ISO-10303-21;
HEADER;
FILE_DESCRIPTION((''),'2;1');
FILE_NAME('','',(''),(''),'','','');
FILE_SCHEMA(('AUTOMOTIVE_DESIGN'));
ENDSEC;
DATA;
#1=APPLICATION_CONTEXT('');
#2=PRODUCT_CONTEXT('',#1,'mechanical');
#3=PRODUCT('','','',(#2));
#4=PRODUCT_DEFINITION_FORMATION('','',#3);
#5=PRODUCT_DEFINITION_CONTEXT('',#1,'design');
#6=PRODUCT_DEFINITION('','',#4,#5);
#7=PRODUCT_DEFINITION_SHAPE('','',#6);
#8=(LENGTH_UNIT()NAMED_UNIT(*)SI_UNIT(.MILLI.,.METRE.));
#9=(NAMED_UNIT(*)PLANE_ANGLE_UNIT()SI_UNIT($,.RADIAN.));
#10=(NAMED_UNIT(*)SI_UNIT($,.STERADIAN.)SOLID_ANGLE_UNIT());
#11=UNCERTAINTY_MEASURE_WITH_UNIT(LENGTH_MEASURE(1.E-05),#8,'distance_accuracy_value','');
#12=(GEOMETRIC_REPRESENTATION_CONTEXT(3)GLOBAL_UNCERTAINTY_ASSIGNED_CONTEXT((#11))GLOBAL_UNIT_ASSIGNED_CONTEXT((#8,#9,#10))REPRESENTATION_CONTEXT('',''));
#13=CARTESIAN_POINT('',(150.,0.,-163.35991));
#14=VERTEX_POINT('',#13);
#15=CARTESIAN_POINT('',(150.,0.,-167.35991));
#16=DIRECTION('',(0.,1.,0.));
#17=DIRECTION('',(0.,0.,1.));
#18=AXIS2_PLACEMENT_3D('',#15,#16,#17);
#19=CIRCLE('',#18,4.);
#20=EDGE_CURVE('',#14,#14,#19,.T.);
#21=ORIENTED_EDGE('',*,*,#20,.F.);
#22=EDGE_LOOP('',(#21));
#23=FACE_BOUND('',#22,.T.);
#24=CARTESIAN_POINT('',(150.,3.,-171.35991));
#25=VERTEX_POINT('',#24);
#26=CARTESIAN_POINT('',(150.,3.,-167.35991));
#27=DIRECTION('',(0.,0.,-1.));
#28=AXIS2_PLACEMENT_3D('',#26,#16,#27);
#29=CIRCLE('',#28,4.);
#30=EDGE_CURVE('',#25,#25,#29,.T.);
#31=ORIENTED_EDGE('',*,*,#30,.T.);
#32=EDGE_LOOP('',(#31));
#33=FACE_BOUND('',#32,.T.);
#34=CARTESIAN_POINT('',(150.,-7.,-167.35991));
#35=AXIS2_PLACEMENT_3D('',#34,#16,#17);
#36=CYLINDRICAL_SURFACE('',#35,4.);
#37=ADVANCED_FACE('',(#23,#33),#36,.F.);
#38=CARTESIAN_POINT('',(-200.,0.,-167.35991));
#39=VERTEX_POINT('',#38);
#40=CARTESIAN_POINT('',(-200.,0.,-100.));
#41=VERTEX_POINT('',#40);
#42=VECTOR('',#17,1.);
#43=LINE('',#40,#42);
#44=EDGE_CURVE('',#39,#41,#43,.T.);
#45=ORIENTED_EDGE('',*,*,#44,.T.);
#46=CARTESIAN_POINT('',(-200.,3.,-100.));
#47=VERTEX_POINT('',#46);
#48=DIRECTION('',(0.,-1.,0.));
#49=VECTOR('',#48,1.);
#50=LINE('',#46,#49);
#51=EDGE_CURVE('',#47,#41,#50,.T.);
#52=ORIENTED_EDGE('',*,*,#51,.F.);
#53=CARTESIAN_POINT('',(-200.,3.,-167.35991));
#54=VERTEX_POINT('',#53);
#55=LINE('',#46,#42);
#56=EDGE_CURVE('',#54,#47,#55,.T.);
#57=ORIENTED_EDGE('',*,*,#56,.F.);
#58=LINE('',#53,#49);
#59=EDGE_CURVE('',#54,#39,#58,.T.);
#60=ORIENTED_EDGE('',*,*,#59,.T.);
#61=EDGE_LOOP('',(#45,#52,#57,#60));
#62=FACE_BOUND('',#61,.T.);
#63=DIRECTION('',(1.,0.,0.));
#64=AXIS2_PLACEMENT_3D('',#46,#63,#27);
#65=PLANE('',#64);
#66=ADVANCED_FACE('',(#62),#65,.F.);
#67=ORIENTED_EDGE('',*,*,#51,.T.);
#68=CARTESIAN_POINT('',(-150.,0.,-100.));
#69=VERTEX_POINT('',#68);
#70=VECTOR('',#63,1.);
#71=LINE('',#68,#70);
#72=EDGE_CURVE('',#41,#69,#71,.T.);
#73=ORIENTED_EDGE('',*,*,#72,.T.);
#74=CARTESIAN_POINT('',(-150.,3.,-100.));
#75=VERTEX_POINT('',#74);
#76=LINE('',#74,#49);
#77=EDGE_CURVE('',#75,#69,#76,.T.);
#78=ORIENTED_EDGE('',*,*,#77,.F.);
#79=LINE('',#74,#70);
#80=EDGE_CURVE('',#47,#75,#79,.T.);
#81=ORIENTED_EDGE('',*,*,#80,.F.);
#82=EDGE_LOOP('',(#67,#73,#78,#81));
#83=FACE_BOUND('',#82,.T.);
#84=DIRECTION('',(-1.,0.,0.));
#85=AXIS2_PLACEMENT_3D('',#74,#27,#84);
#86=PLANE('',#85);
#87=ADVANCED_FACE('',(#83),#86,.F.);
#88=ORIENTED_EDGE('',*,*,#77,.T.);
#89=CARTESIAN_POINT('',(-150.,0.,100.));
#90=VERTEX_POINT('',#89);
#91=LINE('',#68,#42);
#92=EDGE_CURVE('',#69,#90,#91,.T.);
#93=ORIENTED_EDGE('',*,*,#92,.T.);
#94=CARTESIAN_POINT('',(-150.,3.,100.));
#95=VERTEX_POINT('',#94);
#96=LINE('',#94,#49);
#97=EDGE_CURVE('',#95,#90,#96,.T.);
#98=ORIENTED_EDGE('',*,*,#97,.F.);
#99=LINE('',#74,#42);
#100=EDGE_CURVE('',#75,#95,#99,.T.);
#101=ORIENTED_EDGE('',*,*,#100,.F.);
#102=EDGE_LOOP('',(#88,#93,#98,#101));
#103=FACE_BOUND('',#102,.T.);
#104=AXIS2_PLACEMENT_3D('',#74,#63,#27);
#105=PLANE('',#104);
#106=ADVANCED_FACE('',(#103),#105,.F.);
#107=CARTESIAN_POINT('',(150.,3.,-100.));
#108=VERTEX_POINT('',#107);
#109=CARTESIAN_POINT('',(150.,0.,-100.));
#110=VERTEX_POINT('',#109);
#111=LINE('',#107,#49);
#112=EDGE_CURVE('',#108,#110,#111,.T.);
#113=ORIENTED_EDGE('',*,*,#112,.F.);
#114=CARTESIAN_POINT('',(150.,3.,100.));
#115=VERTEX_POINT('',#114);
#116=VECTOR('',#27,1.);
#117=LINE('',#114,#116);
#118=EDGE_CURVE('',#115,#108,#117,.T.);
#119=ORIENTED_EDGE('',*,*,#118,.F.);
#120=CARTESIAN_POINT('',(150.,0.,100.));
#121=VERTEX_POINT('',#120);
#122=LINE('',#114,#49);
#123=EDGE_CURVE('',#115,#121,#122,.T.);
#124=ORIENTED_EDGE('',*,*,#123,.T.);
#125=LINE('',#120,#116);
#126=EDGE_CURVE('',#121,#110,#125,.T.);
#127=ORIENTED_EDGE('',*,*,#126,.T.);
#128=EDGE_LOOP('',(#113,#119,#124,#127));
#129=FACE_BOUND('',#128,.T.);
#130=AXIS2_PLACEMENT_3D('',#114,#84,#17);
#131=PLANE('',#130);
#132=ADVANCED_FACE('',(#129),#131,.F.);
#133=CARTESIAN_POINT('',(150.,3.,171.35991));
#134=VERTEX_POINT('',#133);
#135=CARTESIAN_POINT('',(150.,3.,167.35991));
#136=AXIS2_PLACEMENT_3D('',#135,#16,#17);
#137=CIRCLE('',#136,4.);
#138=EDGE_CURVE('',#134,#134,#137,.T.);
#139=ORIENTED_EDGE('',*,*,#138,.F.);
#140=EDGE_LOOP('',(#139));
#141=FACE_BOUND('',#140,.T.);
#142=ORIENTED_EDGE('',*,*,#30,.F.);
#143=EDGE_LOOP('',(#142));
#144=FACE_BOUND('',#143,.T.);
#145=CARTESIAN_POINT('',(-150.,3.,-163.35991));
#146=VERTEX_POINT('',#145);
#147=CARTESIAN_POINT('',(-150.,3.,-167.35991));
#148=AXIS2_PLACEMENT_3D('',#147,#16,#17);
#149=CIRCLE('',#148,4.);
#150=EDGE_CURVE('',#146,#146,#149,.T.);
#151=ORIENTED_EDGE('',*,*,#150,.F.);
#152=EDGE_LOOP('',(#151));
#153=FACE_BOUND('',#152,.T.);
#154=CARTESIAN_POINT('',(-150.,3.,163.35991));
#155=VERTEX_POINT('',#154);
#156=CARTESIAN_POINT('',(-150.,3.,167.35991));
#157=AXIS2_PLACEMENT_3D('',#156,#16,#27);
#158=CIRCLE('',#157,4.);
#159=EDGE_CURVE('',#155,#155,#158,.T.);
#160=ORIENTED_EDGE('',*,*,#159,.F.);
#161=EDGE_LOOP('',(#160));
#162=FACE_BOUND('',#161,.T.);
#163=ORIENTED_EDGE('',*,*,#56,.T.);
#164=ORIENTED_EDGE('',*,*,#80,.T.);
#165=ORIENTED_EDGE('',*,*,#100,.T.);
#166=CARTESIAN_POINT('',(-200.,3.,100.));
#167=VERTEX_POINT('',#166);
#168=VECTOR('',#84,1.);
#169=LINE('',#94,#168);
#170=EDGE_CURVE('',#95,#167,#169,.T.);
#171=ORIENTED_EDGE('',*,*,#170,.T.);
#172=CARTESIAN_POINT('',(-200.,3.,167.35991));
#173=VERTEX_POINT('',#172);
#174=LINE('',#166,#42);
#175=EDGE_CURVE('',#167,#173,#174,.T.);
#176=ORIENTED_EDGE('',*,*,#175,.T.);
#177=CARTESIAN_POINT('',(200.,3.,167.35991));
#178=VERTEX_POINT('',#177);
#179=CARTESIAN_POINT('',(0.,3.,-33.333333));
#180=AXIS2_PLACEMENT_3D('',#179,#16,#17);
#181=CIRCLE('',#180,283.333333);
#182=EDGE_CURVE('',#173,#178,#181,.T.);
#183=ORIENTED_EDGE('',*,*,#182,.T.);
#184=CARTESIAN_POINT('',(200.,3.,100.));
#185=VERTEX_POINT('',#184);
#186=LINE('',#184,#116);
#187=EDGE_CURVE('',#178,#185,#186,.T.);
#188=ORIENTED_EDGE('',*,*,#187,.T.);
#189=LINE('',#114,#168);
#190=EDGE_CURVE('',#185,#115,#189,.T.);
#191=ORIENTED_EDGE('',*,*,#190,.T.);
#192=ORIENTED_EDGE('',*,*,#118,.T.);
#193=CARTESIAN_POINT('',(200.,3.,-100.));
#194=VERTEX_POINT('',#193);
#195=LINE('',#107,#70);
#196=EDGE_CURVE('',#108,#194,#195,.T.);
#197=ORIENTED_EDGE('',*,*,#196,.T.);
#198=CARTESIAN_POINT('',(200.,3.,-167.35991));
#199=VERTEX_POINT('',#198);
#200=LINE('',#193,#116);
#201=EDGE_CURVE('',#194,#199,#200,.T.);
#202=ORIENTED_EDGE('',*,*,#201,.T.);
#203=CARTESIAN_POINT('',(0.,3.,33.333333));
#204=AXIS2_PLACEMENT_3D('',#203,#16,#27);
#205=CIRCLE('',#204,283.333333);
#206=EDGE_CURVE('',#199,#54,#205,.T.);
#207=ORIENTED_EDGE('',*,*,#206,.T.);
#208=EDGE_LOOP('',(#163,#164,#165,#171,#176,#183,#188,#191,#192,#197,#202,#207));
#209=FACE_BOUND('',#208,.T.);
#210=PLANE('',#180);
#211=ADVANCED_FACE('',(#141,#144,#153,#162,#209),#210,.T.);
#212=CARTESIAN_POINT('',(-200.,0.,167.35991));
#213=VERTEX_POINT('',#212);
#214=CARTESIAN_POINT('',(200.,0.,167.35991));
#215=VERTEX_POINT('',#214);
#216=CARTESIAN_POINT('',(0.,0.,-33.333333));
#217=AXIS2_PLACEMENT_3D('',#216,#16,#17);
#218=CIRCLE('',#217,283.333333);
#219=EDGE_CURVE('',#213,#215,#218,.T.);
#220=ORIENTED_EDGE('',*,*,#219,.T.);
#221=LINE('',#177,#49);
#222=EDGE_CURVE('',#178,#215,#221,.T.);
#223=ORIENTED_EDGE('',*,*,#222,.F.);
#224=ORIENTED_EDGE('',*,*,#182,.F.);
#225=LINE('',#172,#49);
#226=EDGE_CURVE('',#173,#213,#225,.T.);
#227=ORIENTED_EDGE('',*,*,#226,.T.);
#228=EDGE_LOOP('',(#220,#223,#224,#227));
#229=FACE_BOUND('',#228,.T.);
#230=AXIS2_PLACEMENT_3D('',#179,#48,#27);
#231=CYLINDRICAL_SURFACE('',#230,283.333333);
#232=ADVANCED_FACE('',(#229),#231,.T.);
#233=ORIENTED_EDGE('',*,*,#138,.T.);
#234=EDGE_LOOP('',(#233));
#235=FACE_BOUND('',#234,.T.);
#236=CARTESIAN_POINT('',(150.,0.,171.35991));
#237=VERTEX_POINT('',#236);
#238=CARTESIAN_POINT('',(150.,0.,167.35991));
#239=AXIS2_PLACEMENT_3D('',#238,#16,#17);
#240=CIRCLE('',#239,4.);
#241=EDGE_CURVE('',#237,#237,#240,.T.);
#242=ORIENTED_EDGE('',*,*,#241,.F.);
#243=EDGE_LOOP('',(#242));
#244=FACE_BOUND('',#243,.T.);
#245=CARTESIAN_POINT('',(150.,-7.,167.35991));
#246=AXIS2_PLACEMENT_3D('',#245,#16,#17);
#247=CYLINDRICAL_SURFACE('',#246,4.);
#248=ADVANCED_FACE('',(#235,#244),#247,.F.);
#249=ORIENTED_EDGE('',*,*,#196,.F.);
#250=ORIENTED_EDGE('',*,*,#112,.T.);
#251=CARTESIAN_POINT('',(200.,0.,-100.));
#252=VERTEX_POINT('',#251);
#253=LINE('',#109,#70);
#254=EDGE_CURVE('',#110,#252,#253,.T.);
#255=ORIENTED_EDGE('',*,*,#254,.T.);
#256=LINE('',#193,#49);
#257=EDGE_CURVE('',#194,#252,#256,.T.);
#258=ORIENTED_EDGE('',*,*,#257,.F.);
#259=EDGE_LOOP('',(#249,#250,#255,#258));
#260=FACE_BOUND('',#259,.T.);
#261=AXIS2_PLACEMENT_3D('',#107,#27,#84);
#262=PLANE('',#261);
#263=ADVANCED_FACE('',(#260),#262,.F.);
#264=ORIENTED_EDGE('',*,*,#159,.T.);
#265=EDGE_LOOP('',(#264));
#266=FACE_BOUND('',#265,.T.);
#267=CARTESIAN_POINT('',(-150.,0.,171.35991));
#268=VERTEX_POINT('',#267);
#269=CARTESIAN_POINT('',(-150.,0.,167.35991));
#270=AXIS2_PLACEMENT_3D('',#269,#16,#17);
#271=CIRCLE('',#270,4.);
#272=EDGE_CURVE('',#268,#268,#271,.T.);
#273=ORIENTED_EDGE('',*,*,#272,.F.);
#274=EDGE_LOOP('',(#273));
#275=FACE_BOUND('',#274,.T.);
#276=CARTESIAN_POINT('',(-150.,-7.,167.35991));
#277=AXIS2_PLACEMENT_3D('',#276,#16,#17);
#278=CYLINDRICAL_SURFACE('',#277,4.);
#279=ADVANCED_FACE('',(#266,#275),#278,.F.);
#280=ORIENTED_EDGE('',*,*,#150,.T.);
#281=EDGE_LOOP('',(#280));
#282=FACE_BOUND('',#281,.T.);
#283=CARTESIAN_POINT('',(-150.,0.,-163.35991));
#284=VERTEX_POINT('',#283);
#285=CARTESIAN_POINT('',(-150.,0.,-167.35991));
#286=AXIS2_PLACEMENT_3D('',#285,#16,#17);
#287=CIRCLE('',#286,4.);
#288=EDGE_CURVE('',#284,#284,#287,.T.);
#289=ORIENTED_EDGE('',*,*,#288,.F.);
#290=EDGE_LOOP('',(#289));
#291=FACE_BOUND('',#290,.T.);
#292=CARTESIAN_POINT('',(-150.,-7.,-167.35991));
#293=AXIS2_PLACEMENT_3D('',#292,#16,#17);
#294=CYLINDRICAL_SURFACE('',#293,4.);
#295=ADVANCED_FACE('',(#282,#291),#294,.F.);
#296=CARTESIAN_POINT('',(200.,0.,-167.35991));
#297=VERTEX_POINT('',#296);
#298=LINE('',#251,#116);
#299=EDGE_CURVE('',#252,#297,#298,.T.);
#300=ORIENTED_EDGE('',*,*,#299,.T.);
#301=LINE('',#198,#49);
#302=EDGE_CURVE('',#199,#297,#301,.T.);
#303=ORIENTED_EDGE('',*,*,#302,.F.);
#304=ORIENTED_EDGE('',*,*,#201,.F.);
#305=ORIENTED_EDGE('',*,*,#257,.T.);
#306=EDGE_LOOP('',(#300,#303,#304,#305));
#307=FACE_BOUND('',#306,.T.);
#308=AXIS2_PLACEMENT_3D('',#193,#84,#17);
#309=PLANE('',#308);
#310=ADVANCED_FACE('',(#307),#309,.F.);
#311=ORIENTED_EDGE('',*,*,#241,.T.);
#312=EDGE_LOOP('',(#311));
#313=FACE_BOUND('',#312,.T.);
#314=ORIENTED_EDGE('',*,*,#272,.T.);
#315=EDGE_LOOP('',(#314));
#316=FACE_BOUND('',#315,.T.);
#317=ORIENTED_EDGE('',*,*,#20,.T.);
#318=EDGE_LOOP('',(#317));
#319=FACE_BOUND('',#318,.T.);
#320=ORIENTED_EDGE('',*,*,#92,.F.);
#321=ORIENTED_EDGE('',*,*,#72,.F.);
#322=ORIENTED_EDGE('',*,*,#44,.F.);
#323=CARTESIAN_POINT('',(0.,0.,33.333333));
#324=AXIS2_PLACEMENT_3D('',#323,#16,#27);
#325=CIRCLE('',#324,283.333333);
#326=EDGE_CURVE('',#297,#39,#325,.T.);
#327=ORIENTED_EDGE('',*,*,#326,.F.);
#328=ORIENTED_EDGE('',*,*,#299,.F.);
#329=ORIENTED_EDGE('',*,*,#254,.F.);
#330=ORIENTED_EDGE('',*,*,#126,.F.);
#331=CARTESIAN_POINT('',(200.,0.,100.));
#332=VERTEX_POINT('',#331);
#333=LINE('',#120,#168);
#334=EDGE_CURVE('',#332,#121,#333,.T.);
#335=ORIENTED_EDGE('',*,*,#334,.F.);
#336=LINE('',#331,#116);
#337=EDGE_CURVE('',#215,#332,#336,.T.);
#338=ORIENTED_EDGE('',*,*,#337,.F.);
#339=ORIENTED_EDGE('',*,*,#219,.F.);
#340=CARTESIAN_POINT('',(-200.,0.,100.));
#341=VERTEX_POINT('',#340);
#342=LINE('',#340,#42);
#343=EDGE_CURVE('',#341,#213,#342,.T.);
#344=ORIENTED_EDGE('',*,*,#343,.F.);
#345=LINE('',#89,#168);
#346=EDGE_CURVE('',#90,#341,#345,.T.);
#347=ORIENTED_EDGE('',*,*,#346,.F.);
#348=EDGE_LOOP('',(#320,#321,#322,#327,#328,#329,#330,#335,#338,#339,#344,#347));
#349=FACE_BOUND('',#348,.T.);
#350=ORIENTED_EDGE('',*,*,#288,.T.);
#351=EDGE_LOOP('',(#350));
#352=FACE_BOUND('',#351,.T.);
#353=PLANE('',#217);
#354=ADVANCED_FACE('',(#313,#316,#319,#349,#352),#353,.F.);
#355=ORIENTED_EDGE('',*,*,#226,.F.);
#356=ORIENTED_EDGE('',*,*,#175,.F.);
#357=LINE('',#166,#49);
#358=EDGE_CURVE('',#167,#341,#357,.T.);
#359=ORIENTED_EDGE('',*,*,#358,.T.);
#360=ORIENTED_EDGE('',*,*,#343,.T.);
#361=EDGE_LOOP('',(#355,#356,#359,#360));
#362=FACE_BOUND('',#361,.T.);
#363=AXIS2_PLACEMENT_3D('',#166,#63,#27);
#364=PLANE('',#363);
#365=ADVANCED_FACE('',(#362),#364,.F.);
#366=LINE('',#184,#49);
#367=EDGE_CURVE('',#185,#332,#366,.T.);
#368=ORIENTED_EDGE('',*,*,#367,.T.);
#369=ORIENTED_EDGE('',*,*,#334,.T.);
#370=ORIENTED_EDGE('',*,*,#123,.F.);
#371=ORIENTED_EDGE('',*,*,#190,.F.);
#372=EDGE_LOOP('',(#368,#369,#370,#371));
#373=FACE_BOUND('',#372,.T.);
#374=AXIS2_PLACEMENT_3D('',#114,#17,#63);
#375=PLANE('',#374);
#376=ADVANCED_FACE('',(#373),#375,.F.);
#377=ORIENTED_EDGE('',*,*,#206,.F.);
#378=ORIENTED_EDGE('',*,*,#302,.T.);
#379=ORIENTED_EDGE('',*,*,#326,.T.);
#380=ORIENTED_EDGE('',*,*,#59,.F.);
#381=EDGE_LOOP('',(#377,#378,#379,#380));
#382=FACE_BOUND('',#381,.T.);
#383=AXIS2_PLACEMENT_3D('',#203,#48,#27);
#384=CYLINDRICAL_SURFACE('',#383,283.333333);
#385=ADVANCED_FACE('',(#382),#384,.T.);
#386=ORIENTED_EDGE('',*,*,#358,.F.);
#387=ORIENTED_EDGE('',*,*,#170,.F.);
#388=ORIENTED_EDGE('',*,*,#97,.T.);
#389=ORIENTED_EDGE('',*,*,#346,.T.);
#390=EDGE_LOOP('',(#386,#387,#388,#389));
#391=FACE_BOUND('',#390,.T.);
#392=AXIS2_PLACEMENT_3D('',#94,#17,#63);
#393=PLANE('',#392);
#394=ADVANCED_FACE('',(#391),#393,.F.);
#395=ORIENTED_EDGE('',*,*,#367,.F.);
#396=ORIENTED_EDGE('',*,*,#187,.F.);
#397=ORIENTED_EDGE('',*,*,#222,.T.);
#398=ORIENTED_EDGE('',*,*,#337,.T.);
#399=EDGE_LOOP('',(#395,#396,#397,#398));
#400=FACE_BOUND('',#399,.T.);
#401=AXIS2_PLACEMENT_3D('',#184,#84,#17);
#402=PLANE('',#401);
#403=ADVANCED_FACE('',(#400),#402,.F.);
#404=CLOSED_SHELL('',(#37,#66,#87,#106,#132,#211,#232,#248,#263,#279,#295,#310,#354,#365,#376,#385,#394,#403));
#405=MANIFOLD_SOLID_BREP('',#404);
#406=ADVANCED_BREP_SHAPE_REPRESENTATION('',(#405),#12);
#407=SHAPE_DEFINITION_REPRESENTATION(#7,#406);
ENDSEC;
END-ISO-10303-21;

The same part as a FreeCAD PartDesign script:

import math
import FreeCAD as App
import Part
import Sketcher

V = App.Vector

doc = App.newDocument("Part")
body = doc.addObject("PartDesign::Body", "Body")

# Sketch on XZ plane
sketch1 = body.newObject("Sketcher::SketchObject", "Sketch")
sketch1.AttachmentSupport = (doc.getObject("XZ_Plane"), [""])
sketch1.MapMode = "FlatFace"
sketch1.addGeometry([
    Part.LineSegment(V(-200, -100, 0), V(-150, -100, 0)),  # 0
    Part.LineSegment(V(-150, -100, 0), V(-150, 100, 0)),  # 1
    Part.LineSegment(V(-150, 100, 0), V(-200, 100, 0)),  # 2
    Part.LineSegment(V(-200, 100, 0), V(-200, 167, 0)),  # 3
    Part.ArcOfCircle(Part.Circle(V(0, -33, 0), V(0, 0, 1), 283), math.radians(45), math.radians(135)),  # 4
    Part.LineSegment(V(200, 167, 0), V(200, 100, 0)),  # 5
    Part.LineSegment(V(200, 100, 0), V(150, 100, 0)),  # 6
    Part.LineSegment(V(150, 100, 0), V(150, -100, 0)),  # 7
    Part.LineSegment(V(150, -100, 0), V(200, -100, 0)),  # 8
    Part.LineSegment(V(200, -100, 0), V(200, -167, 0)),  # 9
    Part.ArcOfCircle(Part.Circle(V(0, 33, 0), V(0, 0, 1), 283), math.radians(-135), math.radians(-45)),  # 10
    Part.LineSegment(V(-200, -167, 0), V(-200, -100, 0)),  # 11
], False)
sketch1.addConstraint([
    Sketcher.Constraint("Coincident", 0, 2, 1, 1),
    Sketcher.Constraint("Coincident", 1, 2, 2, 1),
    Sketcher.Constraint("Coincident", 2, 2, 3, 1),
    Sketcher.Constraint("Coincident", 3, 2, 4, 2),
    Sketcher.Constraint("Coincident", 4, 1, 5, 1),
    Sketcher.Constraint("Coincident", 5, 2, 6, 1),
    Sketcher.Constraint("Coincident", 6, 2, 7, 1),
    Sketcher.Constraint("Coincident", 7, 2, 8, 1),
    Sketcher.Constraint("Coincident", 8, 2, 9, 1),
    Sketcher.Constraint("Coincident", 9, 2, 10, 2),
    Sketcher.Constraint("Coincident", 10, 1, 11, 1),
    Sketcher.Constraint("Coincident", 11, 2, 0, 1),
    Sketcher.Constraint("Horizontal", 0),
    Sketcher.Constraint("Vertical", 1),
    Sketcher.Constraint("Horizontal", 2),
    Sketcher.Constraint("Vertical", 3),
    Sketcher.Constraint("Vertical", 5),
    Sketcher.Constraint("Horizontal", 6),
    Sketcher.Constraint("Vertical", 7),
    Sketcher.Constraint("Horizontal", 8),
    Sketcher.Constraint("Vertical", 9),
    Sketcher.Constraint("Vertical", 11),
    Sketcher.Constraint("Equal", 4, 10),
    Sketcher.Constraint("Symmetric", 4, 3, 10, 3, -1, 1),
    Sketcher.Constraint("Symmetric", 0, 2, 6, 2, -1, 1),
    Sketcher.Constraint("Symmetric", 2, 2, 8, 2, -1, 1),
    Sketcher.Constraint("Symmetric", 3, 2, 4, 1, -2),
    Sketcher.Constraint("Symmetric", 8, 2, 11, 2, -2),
    Sketcher.Constraint("DistanceX", 0, 1, 0, 2, 50.0),
    Sketcher.Constraint("DistanceY", 1, 1, 1, 2, 200.0),
    Sketcher.Constraint("DistanceX", 0, 2, -1, 1, 150.0),
    Sketcher.Constraint("Radius", 4, 283.333333),
    Sketcher.Constraint("DistanceY", 3, 1, 3, 2, 67.35991),
])
pad1 = body.newObject("PartDesign::Pad", "Pad")
pad1.Profile = sketch1
pad1.Length = 3
pad1.Reversed = True

# Sketch on XZ plane
sketch2 = body.newObject("Sketcher::SketchObject", "Sketch001")
sketch2.AttachmentSupport = (doc.getObject("XZ_Plane"), [""])
sketch2.MapMode = "FlatFace"
sketch2.AttachmentOffset = App.Placement(V(0, 0, -3), App.Rotation())
sketch2.addGeometry([
    Part.Circle(V(-150, -167.4, 0), V(0, 0, 1), 4),
    Part.Circle(V(150, -167.4, 0), V(0, 0, 1), 4),
    Part.Circle(V(150, 167.4, 0), V(0, 0, 1), 4),
    Part.Circle(V(-150, 167.4, 0), V(0, 0, 1), 4),
], False)
sketch2.addConstraint([
    Sketcher.Constraint("Equal", 0, 1),
    Sketcher.Constraint("Equal", 1, 2),
    Sketcher.Constraint("Equal", 2, 3),
    Sketcher.Constraint("Symmetric", 0, 3, 2, 3, -1, 1),
    Sketcher.Constraint("Symmetric", 1, 3, 3, 3, -1, 1),
    Sketcher.Constraint("Symmetric", 0, 3, 1, 3, -2),
    Sketcher.Constraint("Diameter", 0, 8.0),
    Sketcher.Constraint("DistanceX", 0, 3, -1, 1, 150.0),
    Sketcher.Constraint("DistanceY", 0, 3, -1, 1, 167.35991),
])
pocket1 = body.newObject("PartDesign::Pocket", "Pocket")
pocket1.Profile = sketch2
pocket1.Length = 10
pocket1.Reversed = True

doc.recompute()
